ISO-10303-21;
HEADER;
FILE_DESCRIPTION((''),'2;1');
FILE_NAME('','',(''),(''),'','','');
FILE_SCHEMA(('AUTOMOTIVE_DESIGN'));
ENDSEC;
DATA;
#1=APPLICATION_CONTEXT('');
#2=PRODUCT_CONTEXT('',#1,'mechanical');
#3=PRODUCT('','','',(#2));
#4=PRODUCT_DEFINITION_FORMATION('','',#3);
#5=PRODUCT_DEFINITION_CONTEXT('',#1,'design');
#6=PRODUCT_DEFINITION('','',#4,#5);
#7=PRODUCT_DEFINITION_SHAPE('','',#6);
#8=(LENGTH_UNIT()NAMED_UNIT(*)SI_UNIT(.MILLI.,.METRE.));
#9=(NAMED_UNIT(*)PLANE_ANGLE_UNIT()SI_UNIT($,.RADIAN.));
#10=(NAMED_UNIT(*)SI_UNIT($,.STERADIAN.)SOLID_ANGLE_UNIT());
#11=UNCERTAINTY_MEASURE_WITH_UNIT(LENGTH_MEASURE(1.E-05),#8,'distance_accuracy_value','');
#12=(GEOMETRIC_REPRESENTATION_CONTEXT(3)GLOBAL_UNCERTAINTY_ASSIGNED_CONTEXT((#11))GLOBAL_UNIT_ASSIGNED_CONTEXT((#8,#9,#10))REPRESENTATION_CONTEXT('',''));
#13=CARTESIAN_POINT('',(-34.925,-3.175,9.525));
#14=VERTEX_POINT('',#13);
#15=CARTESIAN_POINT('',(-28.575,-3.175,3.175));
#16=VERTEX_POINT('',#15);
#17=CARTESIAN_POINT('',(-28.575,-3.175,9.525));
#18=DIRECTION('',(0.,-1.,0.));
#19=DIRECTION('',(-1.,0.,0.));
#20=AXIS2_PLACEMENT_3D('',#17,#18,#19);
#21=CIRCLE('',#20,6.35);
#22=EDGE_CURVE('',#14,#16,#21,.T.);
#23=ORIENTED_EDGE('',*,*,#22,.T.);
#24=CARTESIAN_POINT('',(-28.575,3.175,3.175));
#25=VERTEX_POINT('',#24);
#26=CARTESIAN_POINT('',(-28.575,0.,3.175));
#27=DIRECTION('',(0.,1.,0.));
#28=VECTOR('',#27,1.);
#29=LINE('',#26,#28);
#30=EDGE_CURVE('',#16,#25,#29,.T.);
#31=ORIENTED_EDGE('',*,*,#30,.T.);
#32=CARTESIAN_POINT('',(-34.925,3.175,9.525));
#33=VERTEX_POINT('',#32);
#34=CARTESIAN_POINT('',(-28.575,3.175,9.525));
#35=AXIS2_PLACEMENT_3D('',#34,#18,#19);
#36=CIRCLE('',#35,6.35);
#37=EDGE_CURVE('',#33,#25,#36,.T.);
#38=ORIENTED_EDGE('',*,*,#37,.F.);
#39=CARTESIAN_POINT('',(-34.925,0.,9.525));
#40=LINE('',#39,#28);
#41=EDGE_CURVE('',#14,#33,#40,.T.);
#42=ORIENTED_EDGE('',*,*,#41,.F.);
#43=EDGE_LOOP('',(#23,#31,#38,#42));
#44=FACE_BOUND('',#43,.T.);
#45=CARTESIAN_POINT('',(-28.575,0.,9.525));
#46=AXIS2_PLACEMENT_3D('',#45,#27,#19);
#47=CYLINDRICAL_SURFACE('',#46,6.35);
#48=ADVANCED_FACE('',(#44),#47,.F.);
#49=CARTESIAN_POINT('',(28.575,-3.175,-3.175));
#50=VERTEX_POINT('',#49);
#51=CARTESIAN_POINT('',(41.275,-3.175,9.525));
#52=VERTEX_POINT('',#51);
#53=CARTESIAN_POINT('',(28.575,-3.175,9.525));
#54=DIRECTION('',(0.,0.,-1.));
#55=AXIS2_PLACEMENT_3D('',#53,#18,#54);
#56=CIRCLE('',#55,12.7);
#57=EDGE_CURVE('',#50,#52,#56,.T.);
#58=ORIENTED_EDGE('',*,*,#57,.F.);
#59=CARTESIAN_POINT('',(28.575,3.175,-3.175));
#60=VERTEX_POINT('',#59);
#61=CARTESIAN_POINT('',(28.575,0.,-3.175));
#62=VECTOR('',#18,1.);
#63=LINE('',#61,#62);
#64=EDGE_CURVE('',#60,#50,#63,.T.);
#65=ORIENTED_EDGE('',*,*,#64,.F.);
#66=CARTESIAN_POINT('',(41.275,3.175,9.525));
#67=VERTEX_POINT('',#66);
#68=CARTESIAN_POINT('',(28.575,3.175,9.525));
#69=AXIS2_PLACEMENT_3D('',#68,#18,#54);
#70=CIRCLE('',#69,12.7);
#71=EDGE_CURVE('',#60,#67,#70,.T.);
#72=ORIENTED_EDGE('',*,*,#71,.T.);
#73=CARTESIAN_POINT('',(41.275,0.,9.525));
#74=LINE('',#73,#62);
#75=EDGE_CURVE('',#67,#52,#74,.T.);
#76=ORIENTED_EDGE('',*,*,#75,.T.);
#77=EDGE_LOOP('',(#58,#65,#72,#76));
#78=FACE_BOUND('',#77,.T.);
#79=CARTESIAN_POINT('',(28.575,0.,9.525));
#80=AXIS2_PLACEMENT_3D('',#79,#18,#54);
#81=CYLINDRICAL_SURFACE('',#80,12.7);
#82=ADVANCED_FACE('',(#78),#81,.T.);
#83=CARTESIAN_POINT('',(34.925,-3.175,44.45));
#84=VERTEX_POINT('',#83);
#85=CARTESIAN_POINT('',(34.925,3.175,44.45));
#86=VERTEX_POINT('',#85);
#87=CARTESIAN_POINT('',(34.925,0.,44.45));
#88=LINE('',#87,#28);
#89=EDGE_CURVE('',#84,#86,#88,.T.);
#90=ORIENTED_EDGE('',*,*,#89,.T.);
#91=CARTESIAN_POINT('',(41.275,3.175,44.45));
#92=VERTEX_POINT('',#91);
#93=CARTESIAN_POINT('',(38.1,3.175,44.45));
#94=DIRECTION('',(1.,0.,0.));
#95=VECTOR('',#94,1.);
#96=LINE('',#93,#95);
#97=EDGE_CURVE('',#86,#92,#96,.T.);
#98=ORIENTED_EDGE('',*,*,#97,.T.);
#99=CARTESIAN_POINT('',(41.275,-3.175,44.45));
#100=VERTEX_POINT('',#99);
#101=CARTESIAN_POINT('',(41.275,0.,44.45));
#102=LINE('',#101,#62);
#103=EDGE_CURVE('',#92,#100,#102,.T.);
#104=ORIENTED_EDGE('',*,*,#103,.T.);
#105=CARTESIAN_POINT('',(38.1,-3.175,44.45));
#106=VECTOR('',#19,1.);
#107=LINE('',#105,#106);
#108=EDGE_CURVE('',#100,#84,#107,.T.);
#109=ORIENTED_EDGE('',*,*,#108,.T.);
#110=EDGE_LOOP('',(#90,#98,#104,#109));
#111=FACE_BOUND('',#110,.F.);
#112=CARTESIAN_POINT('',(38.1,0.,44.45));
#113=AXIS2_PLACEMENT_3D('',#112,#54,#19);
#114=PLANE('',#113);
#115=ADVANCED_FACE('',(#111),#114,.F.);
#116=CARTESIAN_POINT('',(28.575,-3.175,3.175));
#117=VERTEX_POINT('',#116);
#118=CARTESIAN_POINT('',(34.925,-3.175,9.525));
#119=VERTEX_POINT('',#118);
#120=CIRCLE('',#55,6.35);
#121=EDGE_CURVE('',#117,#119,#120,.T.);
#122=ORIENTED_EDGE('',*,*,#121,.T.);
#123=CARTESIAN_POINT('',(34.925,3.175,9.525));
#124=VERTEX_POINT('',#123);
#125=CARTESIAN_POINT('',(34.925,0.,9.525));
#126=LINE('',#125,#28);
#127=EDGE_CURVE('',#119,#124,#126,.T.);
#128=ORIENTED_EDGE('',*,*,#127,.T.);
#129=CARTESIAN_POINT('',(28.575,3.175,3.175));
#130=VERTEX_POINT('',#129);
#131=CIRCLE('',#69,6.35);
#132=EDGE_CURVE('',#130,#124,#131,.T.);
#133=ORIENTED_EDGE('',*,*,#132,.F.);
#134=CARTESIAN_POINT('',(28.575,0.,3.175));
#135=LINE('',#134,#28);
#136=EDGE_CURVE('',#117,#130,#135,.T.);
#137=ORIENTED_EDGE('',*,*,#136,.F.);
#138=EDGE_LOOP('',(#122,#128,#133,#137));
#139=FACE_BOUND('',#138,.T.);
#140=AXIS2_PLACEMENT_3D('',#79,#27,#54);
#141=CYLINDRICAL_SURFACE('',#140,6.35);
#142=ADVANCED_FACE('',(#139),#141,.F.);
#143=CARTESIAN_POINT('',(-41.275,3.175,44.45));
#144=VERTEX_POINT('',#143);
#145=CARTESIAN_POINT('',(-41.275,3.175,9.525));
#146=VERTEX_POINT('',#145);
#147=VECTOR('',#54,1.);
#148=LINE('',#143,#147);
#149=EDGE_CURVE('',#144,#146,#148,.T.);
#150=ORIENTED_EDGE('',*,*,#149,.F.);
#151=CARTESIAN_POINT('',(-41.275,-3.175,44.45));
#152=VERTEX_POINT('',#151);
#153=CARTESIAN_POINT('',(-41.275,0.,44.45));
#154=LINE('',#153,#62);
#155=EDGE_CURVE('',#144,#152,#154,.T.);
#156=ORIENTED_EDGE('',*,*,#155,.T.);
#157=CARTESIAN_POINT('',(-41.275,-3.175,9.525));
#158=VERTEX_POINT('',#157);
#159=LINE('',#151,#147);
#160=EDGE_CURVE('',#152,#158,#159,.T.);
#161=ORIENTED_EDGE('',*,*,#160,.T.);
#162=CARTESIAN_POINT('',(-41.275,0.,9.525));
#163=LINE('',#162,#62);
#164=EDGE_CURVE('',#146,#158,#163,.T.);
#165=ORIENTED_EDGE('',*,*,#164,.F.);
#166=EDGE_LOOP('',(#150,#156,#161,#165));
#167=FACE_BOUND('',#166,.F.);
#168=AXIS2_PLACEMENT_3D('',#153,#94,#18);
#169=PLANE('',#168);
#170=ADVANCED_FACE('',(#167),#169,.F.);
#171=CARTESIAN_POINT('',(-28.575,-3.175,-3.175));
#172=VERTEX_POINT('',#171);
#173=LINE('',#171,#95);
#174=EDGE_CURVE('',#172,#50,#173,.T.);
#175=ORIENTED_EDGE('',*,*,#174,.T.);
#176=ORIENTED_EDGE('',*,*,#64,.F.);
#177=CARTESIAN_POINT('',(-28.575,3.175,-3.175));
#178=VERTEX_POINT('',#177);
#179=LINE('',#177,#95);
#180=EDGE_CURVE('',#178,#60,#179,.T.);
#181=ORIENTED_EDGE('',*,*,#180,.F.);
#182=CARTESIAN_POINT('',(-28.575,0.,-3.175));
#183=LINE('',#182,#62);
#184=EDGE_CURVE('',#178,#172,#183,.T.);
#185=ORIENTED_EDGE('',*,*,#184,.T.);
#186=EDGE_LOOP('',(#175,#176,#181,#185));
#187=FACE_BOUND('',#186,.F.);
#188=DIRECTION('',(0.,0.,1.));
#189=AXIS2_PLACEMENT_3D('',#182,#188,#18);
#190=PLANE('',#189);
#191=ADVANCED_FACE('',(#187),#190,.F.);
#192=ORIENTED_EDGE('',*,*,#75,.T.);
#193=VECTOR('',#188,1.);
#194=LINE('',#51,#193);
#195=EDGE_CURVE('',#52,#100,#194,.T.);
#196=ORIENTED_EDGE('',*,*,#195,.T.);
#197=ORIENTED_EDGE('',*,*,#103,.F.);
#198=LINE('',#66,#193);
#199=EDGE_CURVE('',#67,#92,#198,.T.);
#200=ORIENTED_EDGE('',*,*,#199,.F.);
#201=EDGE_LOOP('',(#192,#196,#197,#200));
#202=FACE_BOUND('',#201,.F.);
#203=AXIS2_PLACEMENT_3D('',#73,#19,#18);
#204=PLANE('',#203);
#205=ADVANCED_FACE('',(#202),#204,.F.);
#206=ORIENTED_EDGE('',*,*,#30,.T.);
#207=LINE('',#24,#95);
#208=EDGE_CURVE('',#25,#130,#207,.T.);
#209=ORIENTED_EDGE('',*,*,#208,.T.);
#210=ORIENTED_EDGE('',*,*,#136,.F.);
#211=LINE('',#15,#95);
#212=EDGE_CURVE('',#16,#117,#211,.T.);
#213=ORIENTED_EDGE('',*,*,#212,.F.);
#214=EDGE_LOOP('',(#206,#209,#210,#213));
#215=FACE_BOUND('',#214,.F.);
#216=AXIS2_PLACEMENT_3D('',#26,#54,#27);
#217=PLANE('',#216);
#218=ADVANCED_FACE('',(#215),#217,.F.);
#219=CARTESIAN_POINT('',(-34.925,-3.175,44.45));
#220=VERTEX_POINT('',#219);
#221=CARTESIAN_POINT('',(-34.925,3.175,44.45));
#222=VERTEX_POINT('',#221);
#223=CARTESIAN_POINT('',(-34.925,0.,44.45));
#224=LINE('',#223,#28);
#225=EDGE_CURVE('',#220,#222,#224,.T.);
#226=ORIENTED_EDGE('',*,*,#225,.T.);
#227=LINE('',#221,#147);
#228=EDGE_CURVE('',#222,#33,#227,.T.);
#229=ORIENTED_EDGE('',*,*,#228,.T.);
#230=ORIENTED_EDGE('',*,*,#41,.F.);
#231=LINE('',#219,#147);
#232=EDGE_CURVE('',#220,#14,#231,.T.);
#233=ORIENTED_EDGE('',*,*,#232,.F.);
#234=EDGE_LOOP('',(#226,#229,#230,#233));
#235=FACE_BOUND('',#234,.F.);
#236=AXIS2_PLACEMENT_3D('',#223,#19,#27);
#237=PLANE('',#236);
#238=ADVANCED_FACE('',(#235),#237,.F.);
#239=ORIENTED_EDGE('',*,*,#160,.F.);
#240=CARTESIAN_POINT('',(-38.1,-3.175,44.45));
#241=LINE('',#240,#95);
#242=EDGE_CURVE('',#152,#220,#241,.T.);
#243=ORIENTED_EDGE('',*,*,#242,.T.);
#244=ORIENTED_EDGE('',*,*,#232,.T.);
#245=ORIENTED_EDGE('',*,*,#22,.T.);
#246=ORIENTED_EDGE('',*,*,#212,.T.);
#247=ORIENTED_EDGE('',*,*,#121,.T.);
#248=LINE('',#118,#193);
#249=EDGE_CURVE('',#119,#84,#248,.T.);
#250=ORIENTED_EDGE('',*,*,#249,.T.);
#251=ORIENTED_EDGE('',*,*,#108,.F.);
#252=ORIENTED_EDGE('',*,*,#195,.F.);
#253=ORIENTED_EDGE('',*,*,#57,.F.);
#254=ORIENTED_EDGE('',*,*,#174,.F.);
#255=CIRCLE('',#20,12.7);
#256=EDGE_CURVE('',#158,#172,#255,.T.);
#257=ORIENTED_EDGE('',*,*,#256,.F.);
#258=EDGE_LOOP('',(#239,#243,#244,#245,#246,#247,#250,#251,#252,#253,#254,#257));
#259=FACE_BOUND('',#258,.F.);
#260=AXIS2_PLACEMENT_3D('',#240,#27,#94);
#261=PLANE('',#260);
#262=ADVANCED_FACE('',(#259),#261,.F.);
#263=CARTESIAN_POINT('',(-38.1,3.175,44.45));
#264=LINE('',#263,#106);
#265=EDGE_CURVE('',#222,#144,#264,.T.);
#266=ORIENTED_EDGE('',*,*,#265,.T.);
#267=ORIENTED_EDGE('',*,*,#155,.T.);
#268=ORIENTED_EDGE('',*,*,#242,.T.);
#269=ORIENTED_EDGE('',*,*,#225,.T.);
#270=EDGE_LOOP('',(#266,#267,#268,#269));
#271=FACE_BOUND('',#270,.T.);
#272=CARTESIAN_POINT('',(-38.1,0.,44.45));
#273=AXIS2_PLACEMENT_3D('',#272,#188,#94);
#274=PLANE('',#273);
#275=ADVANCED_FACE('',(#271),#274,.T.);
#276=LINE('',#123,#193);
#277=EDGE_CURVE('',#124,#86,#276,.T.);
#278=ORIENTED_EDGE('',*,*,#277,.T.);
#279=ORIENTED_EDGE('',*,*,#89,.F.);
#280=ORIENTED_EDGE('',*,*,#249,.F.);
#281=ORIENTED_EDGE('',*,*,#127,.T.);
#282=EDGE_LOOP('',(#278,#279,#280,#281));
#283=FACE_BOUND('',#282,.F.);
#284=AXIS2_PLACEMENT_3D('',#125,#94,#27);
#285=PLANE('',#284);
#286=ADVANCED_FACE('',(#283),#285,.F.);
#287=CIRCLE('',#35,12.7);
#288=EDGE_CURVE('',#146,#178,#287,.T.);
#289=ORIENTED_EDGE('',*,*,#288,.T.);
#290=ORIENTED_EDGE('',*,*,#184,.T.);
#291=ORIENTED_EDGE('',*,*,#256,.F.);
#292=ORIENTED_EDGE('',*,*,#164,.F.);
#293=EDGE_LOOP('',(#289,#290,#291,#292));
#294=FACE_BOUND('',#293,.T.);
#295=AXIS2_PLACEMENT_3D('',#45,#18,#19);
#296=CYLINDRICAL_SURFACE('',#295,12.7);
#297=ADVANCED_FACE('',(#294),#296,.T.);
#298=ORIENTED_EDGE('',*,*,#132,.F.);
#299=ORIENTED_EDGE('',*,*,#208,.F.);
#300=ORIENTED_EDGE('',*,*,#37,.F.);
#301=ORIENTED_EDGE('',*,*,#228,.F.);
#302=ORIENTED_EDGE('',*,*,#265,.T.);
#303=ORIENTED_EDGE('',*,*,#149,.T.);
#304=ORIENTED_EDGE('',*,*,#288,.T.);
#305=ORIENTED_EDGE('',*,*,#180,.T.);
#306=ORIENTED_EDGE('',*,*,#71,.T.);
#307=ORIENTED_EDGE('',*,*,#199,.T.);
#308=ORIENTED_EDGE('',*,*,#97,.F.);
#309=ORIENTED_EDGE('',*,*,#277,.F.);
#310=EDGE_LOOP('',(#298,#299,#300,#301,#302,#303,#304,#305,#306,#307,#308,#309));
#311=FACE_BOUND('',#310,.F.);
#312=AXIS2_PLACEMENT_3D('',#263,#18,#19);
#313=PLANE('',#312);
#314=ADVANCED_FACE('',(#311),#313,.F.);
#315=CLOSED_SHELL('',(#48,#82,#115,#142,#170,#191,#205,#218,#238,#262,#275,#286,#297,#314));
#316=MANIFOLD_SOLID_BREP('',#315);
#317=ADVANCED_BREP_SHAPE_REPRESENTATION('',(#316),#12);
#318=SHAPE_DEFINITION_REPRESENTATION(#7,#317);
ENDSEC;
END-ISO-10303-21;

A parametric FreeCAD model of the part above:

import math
import FreeCAD as App
import Part
import Sketcher

V = App.Vector
Q = App.Units.Quantity

doc = App.newDocument("Part")
body = doc.addObject("PartDesign::Body", "Body")

# Sketch on XY plane
sketch1 = doc.addObject("Sketcher::SketchObject", "Sketch")
body.addObject(sketch1)
sketch1.AttachmentSupport = (doc.XY_Plane, [""])
sketch1.MapMode = "FlatFace"
sketch1.AttachmentOffset = App.Placement(V(0, 0, 1.75 * 25.4), App.Rotation())
sketch1.addGeometry([
    Part.LineSegment(V(-41, 3, 0), V(-41, -3, 0)),
    Part.LineSegment(V(-41, -3, 0), V(-35, -3, 0)),
    Part.LineSegment(V(-35, -3, 0), V(-35, 3, 0)),
    Part.LineSegment(V(-35, 3, 0), V(-41, 3, 0)),
], False)
sketch1.addConstraint([
    Sketcher.Constraint("Coincident", 0, 2, 1, 1),
    Sketcher.Constraint("Coincident", 1, 2, 2, 1),
    Sketcher.Constraint("Coincident", 2, 2, 3, 1),
    Sketcher.Constraint("Coincident", 3, 2, 0, 1),
    Sketcher.Constraint("Vertical", 0),
    Sketcher.Constraint("Horizontal", 1),
    Sketcher.Constraint("Vertical", 2),
    Sketcher.Constraint("Horizontal", 3),
    Sketcher.Constraint("Equal", 3, 0),
    Sketcher.Constraint("DistanceX", 1, 1, 1, 2, Q("0.25 in")),
    Sketcher.Constraint("DistanceX", 0, 2, -1, 1, Q("1.625 in")),
    Sketcher.Constraint("DistanceY", 0, 2, -1, 1, Q("0.125 in")),
])

# Sketch on XZ plane
sketch2 = doc.addObject("Sketcher::SketchObject", "Sketch001")
body.addObject(sketch2)
sketch2.AttachmentSupport = (doc.XZ_Plane, [""])
sketch2.MapMode = "FlatFace"
sketch2.addGeometry([
    Part.LineSegment(V(-38, 44, 0), V(-38, 10, 0)),  # 0
    Part.ArcOfCircle(Part.Circle(V(-29, 10, 0), V(0, 0, 1), 10), math.radians(180), math.radians(270)),  # 1
    Part.LineSegment(V(-29, 0, 0), V(29, 0, 0)),  # 2
    Part.ArcOfCircle(Part.Circle(V(29, 10, 0), V(0, 0, 1), 10), math.radians(-90), math.radians(0)),  # 3
    Part.LineSegment(V(38, 10, 0), V(38, 44, 0)),  # 4
], False)
sketch2.addConstraint([
    Sketcher.Constraint("Tangent", 0, 2, 1, 1),
    Sketcher.Constraint("Tangent", 1, 2, 2, 1),
    Sketcher.Constraint("Tangent", 2, 2, 3, 1),
    Sketcher.Constraint("Tangent", 3, 2, 4, 1),
    Sketcher.Constraint("Vertical", 0),
    Sketcher.Constraint("Horizontal", 2),
    Sketcher.Constraint("Vertical", 4),
    Sketcher.Constraint("Equal", 1, 3),
    Sketcher.Constraint("Symmetric", 1, 2, 2, 2, -1, 1),
    Sketcher.Constraint("Horizontal", 0, 1, 4, 2),
    Sketcher.Constraint("Radius", 1, Q("0.375 in")),
    Sketcher.Constraint("DistanceX", 0, 2, 3, 2, Q("3 in")),
    Sketcher.Constraint("DistanceY", 0, 2, 0, 1, Q("1.375 in")),
])
doc.recompute()

additivepipe = doc.addObject("PartDesign::AdditivePipe", "AdditivePipe")
body.addObject(additivepipe)
additivepipe.Profile = sketch1
additivepipe.Spine = (sketch2, ["Edge1", "Edge2", "Edge3", "Edge4", "Edge5"])

doc.recompute()
